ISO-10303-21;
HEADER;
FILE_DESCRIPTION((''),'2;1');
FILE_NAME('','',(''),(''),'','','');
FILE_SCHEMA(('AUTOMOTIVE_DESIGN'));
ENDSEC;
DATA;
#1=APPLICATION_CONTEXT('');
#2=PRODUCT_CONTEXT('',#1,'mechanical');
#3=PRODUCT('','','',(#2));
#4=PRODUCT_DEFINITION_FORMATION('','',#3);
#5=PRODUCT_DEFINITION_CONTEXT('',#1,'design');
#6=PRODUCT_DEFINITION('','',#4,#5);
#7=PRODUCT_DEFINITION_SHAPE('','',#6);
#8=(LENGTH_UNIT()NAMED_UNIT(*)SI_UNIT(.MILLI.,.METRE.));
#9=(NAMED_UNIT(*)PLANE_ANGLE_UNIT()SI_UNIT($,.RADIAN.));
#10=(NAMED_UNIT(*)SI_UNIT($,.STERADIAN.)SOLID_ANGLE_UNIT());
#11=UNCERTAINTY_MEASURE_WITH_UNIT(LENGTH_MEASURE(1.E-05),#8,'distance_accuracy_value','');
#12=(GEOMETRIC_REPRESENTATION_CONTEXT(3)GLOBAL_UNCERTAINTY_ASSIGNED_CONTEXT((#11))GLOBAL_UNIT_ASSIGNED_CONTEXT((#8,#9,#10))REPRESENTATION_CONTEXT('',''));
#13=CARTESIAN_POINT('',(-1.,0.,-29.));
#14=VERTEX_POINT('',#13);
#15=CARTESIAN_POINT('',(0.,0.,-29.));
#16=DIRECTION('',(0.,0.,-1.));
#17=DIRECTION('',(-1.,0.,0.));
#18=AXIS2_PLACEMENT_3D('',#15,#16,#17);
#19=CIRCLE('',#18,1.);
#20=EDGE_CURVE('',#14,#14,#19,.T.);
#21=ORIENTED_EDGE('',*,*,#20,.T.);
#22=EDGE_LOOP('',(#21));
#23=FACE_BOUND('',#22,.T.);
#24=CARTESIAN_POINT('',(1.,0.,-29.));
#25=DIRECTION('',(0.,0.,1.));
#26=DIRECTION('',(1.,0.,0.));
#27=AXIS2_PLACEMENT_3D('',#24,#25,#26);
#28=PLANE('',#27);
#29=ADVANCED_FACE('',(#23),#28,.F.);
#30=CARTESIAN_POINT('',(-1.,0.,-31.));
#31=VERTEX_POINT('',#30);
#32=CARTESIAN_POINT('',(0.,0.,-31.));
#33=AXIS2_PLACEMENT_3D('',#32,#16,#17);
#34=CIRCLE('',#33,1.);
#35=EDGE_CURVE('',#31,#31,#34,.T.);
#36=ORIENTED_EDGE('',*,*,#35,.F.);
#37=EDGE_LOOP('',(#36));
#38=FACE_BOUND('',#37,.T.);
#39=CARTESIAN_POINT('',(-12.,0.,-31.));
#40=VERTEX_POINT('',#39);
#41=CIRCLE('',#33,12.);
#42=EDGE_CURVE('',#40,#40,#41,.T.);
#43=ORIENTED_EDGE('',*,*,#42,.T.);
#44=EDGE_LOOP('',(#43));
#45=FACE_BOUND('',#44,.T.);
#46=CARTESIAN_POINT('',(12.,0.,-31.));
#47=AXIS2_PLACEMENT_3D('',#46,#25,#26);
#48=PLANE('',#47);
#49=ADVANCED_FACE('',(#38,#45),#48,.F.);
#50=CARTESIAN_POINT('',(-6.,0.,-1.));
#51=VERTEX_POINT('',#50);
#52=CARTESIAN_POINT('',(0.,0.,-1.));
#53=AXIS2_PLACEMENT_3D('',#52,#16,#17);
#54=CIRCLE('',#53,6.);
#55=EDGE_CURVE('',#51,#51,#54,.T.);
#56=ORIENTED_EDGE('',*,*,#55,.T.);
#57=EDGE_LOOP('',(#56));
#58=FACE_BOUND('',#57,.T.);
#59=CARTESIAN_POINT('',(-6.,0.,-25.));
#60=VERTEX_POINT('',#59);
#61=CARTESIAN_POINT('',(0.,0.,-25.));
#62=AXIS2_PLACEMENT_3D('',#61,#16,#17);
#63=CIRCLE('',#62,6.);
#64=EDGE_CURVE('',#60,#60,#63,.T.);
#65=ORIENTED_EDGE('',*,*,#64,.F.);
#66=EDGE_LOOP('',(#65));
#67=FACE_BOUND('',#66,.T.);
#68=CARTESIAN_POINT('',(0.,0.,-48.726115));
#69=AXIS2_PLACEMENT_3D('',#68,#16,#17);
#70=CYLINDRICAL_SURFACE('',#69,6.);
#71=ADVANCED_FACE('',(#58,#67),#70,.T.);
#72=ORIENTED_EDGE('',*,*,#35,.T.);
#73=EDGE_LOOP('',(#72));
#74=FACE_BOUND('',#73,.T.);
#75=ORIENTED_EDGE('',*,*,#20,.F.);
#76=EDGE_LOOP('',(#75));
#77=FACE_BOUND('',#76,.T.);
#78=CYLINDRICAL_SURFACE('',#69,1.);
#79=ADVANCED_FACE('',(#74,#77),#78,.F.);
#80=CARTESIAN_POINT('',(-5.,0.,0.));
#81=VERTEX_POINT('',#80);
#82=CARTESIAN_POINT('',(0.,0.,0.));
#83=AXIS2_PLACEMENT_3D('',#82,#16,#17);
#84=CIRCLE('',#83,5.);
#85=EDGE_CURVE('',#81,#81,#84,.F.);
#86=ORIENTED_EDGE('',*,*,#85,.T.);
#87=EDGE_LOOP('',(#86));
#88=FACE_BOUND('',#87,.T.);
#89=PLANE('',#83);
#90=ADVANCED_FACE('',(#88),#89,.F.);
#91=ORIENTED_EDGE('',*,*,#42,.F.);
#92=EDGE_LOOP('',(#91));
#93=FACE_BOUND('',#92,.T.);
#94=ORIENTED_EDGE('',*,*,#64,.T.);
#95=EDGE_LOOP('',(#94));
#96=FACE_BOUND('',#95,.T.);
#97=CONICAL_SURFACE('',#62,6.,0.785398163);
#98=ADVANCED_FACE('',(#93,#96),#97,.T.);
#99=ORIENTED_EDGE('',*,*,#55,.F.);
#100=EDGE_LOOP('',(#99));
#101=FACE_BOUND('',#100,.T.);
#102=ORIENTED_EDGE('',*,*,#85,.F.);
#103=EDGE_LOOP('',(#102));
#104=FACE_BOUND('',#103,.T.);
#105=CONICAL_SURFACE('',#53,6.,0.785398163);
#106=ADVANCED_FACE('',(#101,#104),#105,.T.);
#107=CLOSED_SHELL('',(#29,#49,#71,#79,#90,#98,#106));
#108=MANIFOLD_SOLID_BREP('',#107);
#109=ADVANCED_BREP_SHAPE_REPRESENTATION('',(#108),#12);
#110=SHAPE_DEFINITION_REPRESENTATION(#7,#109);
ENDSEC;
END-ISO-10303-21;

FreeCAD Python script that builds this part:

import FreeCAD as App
import Part
import Sketcher
from FreeCAD import Vector
Q = App.Units.Quantity


def edges_at(feature, points):
    """Names of the edges that pass closest to the given points."""
    edges = feature.Shape.Edges
    near = lambda p: min(range(len(edges)), key=lambda i: edges[i].distToShape(Part.Vertex(*p))[0])
    return sorted({f"Edge{near(p) + 1}" for p in points})

doc = App.newDocument("Part")
body = doc.addObject("PartDesign::Body", "Body")

# Sketch on XZ plane
sketch1 = doc.addObject("Sketcher::SketchObject", "Sketch")
body.addObject(sketch1)
sketch1.AttachmentSupport = (doc.XZ_Plane, [""])
sketch1.MapMode = "FlatFace"
sketch1.addGeometry([
    Part.LineSegment(Vector(6, 0, 0), Vector(6, -25, 0)),  # 0
    Part.LineSegment(Vector(6, -25, 0), Vector(12, -31, 0)),  # 1
    Part.LineSegment(Vector(12, -31, 0), Vector(1, -31, 0)),  # 2
    Part.LineSegment(Vector(1, -31, 0), Vector(1, -29, 0)),  # 3
    Part.LineSegment(Vector(1, -29, 0), Vector(0, -29, 0)),  # 4
    Part.LineSegment(Vector(0, -29, 0), Vector(0, 0, 0)),  # 5
    Part.LineSegment(Vector(0, 0, 0), Vector(6, 0, 0)),  # 6
], False)
sketch1.addConstraint([
    Sketcher.Constraint("Coincident", 0, 2, 1, 1),
    Sketcher.Constraint("Coincident", 1, 2, 2, 1),
    Sketcher.Constraint("Coincident", 2, 2, 3, 1),
    Sketcher.Constraint("Coincident", 3, 2, 4, 1),
    Sketcher.Constraint("Coincident", 4, 2, 5, 1),
    Sketcher.Constraint("Coincident", 5, 2, 6, 1),
    Sketcher.Constraint("Coincident", 6, 2, 0, 1),
    Sketcher.Constraint("Vertical", 0),
    Sketcher.Constraint("Horizontal", 2),
    Sketcher.Constraint("Vertical", 3),
    Sketcher.Constraint("Horizontal", 4),
    Sketcher.Constraint("Vertical", 5),
    Sketcher.Constraint("Horizontal", 6),
    Sketcher.Constraint("Coincident", 5, 2, -1, 1),
    Sketcher.Constraint("DistanceX", 2, 2, 2, 1, Q("11 mm")),
    Sketcher.Constraint("DistanceX", 4, 2, 4, 1, Q("1 mm")),
    Sketcher.Constraint("DistanceX", 6, 1, 6, 2, Q("6 mm")),
    Sketcher.Constraint("DistanceY", 0, 2, 0, 1, Q("25 mm")),
    Sketcher.Constraint("DistanceY", 3, 1, 3, 2, Q("2 mm")),
    Sketcher.Constraint("DistanceY", 5, 1, 5, 2, Q("29 mm")),
])
revolution = doc.addObject("PartDesign::Revolution", "Revolution")
body.addObject(revolution)
revolution.Profile = sketch1
revolution.ReferenceAxis = (sketch1, ["V_Axis"])
revolution.Angle = 360
doc.recompute()

chamfer = doc.addObject("PartDesign::Chamfer", "Chamfer")
body.addObject(chamfer)
chamfer.Base = (revolution, edges_at(revolution, [(6, 0, 0)]))
chamfer.Size = 1

doc.recompute()
